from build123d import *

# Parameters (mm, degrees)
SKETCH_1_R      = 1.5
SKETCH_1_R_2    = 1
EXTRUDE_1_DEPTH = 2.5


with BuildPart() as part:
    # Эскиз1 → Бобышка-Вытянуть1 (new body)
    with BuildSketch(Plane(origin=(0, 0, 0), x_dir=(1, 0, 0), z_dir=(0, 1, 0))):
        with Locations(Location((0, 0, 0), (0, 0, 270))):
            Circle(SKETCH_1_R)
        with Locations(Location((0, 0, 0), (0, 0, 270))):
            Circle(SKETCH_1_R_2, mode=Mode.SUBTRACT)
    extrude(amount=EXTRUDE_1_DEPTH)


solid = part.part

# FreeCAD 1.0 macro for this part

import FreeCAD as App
import Part
import Sketcher

V = App.Vector

doc = App.newDocument("Part")
body = doc.addObject("PartDesign::Body", "Body")

# Sketch on XZ plane
sketch1 = body.newObject("Sketcher::SketchObject", "Sketch")
sketch1.AttachmentSupport = (doc.getObject("XZ_Plane"), [""])
sketch1.MapMode = "FlatFace"
sketch1.addGeometry([
    Part.Circle(V(0, 0, 0), V(0, 0, 1), 1.5),
    Part.Circle(V(0, 0, 0), V(0, 0, 1), 1),
], False)
sketch1.addConstraint([
    Sketcher.Constraint("Coincident", 0, 3, -1, 1),
    Sketcher.Constraint("Coincident", 1, 3, -1, 1),
    Sketcher.Constraint("Diameter", 0, 3.0),
    Sketcher.Constraint("Diameter", 1, 2.0),
])
pad1 = body.newObject("PartDesign::Pad", "Pad")
pad1.Profile = sketch1
pad1.Length = 2.5
pad1.Reversed = True

doc.recompute()
